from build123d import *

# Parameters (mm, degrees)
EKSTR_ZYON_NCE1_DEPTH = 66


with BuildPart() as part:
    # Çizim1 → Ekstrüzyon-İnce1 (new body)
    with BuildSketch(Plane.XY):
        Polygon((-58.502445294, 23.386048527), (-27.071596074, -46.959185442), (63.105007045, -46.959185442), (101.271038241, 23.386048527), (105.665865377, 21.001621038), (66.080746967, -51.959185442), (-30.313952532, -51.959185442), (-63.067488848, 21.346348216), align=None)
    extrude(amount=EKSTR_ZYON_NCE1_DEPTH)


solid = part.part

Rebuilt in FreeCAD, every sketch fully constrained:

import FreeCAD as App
import Part
import Sketcher


def add_polygon(sketch, points):
    """Adds a closed chain of lines whose ends are joined by coincident constraints."""
    first, n = sketch.GeometryCount, len(points)
    for a, b in zip(points, points[1:] + points[:1]):
        sketch.addGeometry(Part.LineSegment(App.Vector(*a, 0), App.Vector(*b, 0)), False)
    for i in range(n):
        sketch.addConstraint(Sketcher.Constraint("Coincident", first + i, 2, first + (i + 1) % n, 1))

doc = App.newDocument("Part")
body = doc.addObject("PartDesign::Body", "Body")

# Sketch on XY plane
sketch1 = body.newObject("Sketcher::SketchObject", "Sketch")
sketch1.AttachmentSupport = (doc.getObject("XY_Plane"), [""])
sketch1.MapMode = "FlatFace"
add_polygon(sketch1, [(-27.071596, -46.959185), (-58.502445, 23.386049), (-63.067489, 21.346348), (-30.313953, -51.959185), (66.080747, -51.959185), (105.665865, 21.001621), (101.271038, 23.386049), (63.105007, -46.959185)])  # lines 0-7
sketch1.addConstraint([
    Sketcher.Constraint("Horizontal", 3),
    Sketcher.Constraint("Horizontal", 7),
    Sketcher.Constraint("Perpendicular", 0, 1),
    Sketcher.Constraint("Perpendicular", 1, 2),
    Sketcher.Constraint("Perpendicular", 4, 5),
    Sketcher.Constraint("Perpendicular", 5, 6),
    Sketcher.Constraint("Horizontal", 0, 2, 5, 2),
    Sketcher.Constraint("Equal", 1, 5),
    Sketcher.Constraint("Distance", 1, 5.0),
    Sketcher.Constraint("DistanceY", 3, 2, 6, 2, 5.0),
    Sketcher.Constraint("DistanceX", 3, 1, 3, 2, 96.394699),
    Sketcher.Constraint("DistanceY", 1, 2, 0, 2, 2.0397),
    Sketcher.Constraint("Distance", 2, 80.29007),
    Sketcher.Constraint("DistanceX", 7, 2, 7, 1, 90.176603),
    Sketcher.Constraint("DistanceY", -1, 1, 0, 2, 23.386049),
    Sketcher.Constraint("DistanceX", 1, 2, -1, 1, 63.067489),
])
pad1 = body.newObject("PartDesign::Pad", "Pad")
pad1.Profile = sketch1
pad1.Length = 66

doc.recompute()
